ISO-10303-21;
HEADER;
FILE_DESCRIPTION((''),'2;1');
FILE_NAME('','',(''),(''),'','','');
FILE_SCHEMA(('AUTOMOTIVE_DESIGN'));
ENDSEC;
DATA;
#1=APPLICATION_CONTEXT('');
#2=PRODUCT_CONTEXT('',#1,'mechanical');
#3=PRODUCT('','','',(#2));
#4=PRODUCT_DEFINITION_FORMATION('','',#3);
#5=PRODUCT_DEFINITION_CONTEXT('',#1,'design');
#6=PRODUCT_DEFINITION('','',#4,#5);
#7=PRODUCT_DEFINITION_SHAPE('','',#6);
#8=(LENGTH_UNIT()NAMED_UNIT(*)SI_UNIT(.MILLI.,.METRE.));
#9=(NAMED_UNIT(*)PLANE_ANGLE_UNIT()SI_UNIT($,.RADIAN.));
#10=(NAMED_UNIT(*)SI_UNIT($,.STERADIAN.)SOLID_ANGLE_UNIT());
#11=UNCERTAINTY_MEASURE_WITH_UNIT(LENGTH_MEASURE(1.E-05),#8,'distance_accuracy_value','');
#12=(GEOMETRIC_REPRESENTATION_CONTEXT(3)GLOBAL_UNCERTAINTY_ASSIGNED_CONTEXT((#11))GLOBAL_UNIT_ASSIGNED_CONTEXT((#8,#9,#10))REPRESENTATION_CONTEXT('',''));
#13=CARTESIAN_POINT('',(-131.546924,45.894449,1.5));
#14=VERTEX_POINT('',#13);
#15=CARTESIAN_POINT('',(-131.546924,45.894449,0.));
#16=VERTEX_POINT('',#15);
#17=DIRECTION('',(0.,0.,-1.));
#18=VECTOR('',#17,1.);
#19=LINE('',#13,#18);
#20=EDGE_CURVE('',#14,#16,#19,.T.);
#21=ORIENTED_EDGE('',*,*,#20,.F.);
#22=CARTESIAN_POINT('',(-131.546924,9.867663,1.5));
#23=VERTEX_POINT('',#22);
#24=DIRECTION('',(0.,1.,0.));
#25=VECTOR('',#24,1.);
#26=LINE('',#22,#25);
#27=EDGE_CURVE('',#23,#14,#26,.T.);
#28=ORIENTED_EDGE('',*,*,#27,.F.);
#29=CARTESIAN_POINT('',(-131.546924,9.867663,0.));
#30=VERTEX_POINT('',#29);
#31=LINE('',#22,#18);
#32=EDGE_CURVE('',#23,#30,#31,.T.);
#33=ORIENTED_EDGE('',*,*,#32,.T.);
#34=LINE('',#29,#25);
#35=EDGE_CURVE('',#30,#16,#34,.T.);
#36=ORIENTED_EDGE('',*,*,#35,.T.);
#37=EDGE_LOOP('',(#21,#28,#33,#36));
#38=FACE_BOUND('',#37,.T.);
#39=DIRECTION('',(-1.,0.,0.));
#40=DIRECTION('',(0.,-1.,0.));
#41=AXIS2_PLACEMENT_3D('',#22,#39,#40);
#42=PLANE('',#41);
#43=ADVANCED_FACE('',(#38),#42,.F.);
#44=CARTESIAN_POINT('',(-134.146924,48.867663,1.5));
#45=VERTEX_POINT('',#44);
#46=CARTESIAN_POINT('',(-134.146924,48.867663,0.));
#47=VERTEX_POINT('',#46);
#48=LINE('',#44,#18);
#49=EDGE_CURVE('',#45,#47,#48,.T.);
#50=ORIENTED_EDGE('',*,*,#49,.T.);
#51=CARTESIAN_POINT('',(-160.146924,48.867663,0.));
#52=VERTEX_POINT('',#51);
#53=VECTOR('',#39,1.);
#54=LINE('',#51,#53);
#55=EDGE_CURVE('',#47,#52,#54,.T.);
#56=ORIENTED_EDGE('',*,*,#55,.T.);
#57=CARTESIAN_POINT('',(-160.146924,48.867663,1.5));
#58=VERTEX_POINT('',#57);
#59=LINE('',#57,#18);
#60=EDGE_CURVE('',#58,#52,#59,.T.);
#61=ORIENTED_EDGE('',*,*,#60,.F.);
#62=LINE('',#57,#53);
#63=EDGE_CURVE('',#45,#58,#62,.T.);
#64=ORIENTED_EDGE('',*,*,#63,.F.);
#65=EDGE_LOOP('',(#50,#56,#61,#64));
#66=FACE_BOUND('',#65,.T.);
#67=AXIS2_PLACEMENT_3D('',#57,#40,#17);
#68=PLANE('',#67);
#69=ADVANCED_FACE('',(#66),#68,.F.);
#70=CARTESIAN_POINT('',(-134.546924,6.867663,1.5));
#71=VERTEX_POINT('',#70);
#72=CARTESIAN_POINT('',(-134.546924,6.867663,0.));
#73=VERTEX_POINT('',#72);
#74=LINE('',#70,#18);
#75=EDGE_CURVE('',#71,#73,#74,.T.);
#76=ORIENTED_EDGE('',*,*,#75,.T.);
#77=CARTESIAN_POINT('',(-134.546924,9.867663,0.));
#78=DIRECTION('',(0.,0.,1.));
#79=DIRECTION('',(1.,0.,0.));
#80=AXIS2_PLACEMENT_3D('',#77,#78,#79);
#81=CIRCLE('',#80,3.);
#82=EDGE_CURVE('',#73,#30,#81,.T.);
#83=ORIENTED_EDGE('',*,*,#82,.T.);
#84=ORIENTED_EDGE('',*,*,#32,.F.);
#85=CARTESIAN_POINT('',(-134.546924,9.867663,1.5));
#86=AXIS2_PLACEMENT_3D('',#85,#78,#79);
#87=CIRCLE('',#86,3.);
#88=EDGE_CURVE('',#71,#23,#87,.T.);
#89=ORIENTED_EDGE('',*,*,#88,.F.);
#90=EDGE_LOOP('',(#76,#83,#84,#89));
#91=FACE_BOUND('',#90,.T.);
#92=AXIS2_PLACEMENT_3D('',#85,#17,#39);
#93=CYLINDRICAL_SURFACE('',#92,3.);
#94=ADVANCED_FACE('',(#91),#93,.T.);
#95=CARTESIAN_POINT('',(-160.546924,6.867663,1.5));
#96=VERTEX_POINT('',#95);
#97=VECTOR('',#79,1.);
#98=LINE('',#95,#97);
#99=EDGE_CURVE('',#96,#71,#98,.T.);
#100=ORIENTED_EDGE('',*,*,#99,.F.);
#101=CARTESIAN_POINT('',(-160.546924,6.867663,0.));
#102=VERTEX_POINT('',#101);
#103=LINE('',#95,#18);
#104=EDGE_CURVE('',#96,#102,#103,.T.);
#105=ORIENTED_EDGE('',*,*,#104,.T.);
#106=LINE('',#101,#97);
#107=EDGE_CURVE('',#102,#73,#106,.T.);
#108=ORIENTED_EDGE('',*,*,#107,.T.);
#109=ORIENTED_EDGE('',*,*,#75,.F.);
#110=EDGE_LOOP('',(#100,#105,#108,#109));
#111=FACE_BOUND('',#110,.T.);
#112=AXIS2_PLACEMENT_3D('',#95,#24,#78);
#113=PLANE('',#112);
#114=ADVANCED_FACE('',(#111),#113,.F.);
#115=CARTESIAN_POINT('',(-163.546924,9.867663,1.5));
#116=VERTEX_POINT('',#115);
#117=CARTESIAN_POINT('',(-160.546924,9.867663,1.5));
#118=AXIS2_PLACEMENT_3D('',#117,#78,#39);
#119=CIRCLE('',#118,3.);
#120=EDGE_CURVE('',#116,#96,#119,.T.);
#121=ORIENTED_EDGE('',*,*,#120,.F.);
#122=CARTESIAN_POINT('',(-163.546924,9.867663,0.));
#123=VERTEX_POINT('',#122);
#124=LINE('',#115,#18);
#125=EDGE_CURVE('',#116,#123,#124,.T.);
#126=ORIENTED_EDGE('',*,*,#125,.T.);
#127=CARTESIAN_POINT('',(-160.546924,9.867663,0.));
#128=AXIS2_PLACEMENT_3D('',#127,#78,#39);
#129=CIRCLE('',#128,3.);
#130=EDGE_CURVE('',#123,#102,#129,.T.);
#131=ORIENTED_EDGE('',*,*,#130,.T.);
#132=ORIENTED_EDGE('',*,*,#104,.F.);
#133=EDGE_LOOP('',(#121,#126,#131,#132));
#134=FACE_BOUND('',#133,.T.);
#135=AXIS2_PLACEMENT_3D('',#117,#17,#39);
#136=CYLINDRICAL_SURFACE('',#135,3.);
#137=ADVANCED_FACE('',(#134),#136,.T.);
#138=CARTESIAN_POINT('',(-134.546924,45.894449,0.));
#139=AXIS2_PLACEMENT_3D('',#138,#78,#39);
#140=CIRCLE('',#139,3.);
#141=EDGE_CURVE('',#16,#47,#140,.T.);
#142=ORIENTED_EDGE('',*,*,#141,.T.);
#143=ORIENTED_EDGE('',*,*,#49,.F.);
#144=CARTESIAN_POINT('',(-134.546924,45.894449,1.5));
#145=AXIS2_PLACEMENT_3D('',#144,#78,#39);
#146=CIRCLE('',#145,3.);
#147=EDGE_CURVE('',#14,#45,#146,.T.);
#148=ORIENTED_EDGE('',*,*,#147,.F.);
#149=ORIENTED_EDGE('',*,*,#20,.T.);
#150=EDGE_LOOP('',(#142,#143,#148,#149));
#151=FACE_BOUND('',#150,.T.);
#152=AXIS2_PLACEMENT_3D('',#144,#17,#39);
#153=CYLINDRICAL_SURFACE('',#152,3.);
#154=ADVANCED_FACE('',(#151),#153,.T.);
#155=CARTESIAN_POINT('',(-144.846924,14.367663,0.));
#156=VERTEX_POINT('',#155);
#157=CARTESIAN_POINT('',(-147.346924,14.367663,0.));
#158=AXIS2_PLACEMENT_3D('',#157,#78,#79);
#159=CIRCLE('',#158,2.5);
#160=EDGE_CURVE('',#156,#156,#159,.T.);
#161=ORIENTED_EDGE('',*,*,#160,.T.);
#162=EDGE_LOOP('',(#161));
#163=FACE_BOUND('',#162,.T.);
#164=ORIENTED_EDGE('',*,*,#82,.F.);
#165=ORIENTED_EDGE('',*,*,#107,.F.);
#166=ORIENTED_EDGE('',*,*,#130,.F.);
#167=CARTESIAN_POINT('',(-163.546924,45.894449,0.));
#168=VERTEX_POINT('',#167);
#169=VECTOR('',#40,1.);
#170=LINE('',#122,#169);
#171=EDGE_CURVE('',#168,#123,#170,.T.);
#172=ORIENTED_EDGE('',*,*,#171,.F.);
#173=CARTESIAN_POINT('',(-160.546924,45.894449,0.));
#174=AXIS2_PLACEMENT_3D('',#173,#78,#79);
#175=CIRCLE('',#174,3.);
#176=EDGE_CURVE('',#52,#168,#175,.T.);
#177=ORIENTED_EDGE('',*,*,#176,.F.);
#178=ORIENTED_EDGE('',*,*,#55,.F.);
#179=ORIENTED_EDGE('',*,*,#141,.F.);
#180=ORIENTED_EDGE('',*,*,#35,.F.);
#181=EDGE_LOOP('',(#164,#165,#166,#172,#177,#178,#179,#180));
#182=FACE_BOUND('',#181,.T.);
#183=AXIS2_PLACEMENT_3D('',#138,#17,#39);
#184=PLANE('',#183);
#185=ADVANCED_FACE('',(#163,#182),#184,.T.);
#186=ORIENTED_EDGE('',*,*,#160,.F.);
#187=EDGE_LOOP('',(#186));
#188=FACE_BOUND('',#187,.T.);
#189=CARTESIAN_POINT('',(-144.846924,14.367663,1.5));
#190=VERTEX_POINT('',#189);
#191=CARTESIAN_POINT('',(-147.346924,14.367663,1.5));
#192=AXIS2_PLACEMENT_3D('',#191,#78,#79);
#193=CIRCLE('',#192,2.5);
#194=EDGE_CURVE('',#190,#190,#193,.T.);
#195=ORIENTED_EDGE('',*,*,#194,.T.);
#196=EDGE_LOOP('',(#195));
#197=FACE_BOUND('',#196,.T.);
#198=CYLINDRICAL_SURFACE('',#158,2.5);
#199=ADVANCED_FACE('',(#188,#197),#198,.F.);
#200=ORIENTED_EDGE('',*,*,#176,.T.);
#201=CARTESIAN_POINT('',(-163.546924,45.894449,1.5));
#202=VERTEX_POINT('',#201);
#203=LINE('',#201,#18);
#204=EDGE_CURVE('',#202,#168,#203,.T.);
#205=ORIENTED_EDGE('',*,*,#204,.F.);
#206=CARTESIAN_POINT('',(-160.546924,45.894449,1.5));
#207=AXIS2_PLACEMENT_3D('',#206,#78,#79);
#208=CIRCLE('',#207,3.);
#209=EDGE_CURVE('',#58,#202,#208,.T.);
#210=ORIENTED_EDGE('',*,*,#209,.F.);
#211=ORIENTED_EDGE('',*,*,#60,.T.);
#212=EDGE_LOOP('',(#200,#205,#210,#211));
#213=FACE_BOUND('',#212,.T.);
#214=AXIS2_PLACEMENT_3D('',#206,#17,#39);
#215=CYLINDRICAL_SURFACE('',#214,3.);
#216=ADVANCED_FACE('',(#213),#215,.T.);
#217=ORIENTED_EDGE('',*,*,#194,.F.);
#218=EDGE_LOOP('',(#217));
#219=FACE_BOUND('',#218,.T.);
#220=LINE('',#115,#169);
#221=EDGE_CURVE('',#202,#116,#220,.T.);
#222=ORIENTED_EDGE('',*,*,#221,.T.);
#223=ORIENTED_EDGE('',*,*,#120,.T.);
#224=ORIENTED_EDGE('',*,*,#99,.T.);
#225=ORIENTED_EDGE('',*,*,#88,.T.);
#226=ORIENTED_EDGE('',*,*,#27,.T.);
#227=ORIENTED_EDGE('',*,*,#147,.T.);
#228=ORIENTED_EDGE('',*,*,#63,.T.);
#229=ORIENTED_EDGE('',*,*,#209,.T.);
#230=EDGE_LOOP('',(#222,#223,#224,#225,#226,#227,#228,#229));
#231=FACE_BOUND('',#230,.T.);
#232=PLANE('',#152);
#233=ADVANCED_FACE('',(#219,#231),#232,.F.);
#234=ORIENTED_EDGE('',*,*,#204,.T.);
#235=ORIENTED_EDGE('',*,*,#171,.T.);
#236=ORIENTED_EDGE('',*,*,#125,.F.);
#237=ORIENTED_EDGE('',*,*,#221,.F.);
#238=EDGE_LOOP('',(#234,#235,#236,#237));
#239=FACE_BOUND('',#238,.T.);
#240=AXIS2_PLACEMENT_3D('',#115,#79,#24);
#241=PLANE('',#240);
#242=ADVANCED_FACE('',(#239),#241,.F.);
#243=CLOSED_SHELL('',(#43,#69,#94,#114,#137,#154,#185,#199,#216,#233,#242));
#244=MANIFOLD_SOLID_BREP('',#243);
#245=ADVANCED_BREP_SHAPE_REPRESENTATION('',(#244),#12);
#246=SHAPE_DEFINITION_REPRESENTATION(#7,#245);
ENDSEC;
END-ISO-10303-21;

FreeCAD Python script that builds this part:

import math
import FreeCAD as App
import Part
import Sketcher

V = App.Vector
Q = App.Units.Quantity

doc = App.newDocument("Part")
params = doc.addObject("Spreadsheet::Sheet", "Params")
for row, (alias, value) in enumerate([
    ("sketch1_radius", "3 mm"),
    ("sketch1_width", "26 mm"),
    ("sketch1_width2", "0.4 mm"),
    ("pad1_length", "1.5 mm"),
    ("sketch2_diameter", "5 mm"),
], start=1):
    params.set(f"A{row}", alias)
    params.set(f"B{row}", "=" + value)
    params.setAlias(f"B{row}", alias)

body = doc.addObject("PartDesign::Body", "Body")

# Sketch on XY plane
sketch1 = doc.addObject("Sketcher::SketchObject", "Sketch")
body.addObject(sketch1)
sketch1.AttachmentSupport = (doc.XY_Plane, [""])
sketch1.MapMode = "FlatFace"
sketch1.addGeometry([
    Part.LineSegment(V(-160.5, 6.9, 0), V(-134.5, 6.9, 0)),  # 0
    Part.ArcOfCircle(Part.Circle(V(-134.5, 9.9, 0), V(0, 0, 1), 3), math.radians(-90), math.radians(0)),  # 1
    Part.LineSegment(V(-131.5, 9.9, 0), V(-131.5, 45.9, 0)),  # 2
    Part.ArcOfCircle(Part.Circle(V(-134.5, 45.9, 0), V(0, 0, 1), 3), math.radians(0), math.radians(82)),  # 3
    Part.LineSegment(V(-134.1, 48.9, 0), V(-160.1, 48.9, 0)),  # 4
    Part.ArcOfCircle(Part.Circle(V(-160.5, 45.9, 0), V(0, 0, 1), 3), math.radians(82), math.radians(180)),  # 5
    Part.LineSegment(V(-163.5, 45.9, 0), V(-163.5, 9.9, 0)),  # 6
    Part.ArcOfCircle(Part.Circle(V(-160.5, 9.9, 0), V(0, 0, 1), 3), math.radians(180), math.radians(270)),  # 7
], False)
sketch1.addConstraint([
    Sketcher.Constraint("Tangent", 0, 2, 1, 1),
    Sketcher.Constraint("Tangent", 1, 2, 2, 1),
    Sketcher.Constraint("Tangent", 2, 2, 3, 1),
    Sketcher.Constraint("Coincident", 3, 2, 4, 1),
    Sketcher.Constraint("Coincident", 4, 2, 5, 1),
    Sketcher.Constraint("Tangent", 5, 2, 6, 1),
    Sketcher.Constraint("Tangent", 6, 2, 7, 1),
    Sketcher.Constraint("Tangent", 7, 2, 0, 1),
    Sketcher.Constraint("Horizontal", 0),
    Sketcher.Constraint("Vertical", 2),
    Sketcher.Constraint("Horizontal", 4),
    Sketcher.Constraint("Vertical", 6),
    Sketcher.Constraint("Equal", 1, 3),
    Sketcher.Constraint("Equal", 3, 5),
    Sketcher.Constraint("Equal", 5, 7),
    Sketcher.Constraint("Horizontal", 3, 3, 5, 3),
    Sketcher.Constraint("Radius", 1, Q("3 mm")),
    Sketcher.Constraint("DistanceX", 0, 1, 0, 2, Q("26 mm")),
    Sketcher.Constraint("DistanceY", 1, 3, 3, 2, Q("39 mm")),
    Sketcher.Constraint("DistanceX", 3, 3, 3, 2, Q("0.4 mm")),
    Sketcher.Constraint("DistanceY", -1, 1, 3, 3, Q("45.894449 mm")),
    Sketcher.Constraint("DistanceX", 1, 3, -1, 1, Q("134.546924 mm")),
])
sketch1.setExpression("Constraints[16]", "Params.sketch1_radius")
sketch1.setExpression("Constraints[17]", "Params.sketch1_width")
sketch1.setExpression("Constraints[19]", "Params.sketch1_width2")
pad1 = doc.addObject("PartDesign::Pad", "Pad")
body.addObject(pad1)
pad1.Profile = sketch1
pad1.setExpression("Length", "Params.pad1_length")

# Sketch on XY plane
sketch2 = doc.addObject("Sketcher::SketchObject", "Sketch001")
body.addObject(sketch2)
sketch2.AttachmentSupport = (doc.XY_Plane, [""])
sketch2.MapMode = "FlatFace"
sketch2.AttachmentOffset = App.Placement(V(0, 0, 1.5), App.Rotation())
sketch2.addGeometry(Part.Circle(V(-147.3, 14.4, 0), V(0, 0, 1), 2.5), False)
sketch2.addConstraint([
    Sketcher.Constraint("Diameter", 0, Q("5 mm")),
    Sketcher.Constraint("DistanceX", 0, 3, -1, 1, Q("147.346924 mm")),
    Sketcher.Constraint("DistanceY", -1, 1, 0, 3, Q("14.367663 mm")),
])
sketch2.setExpression("Constraints[0]", "Params.sketch2_diameter")
pocket1 = doc.addObject("PartDesign::Pocket", "Pocket")
body.addObject(pocket1)
pocket1.Profile = sketch2
pocket1.Type = "ThroughAll"

doc.recompute()
